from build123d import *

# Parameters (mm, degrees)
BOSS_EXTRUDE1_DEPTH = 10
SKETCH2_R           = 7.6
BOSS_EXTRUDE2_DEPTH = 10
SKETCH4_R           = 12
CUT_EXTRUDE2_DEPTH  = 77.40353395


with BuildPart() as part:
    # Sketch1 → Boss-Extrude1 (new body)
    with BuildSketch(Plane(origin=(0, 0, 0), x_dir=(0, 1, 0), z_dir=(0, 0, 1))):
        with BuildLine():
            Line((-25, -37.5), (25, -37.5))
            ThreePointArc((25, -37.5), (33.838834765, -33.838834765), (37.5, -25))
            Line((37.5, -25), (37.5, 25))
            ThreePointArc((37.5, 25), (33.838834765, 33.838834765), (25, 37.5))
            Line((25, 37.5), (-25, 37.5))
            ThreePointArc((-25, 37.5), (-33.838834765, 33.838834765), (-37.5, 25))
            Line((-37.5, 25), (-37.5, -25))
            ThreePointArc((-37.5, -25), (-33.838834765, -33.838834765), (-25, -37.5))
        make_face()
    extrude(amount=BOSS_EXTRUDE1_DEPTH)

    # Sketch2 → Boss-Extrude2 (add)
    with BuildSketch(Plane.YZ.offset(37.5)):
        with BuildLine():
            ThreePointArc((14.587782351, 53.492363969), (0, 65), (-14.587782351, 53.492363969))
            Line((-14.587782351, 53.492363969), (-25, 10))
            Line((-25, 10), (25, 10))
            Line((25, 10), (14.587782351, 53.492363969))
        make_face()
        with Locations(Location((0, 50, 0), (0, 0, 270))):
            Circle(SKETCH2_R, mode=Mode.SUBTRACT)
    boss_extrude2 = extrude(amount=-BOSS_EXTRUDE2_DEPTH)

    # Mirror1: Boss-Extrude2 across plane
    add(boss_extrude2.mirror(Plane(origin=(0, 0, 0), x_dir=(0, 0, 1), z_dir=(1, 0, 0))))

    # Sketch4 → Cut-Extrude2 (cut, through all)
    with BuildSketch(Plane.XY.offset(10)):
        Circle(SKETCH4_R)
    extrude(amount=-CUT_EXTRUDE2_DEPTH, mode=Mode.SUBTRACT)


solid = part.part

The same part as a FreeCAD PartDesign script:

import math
import FreeCAD as App
import Part
import Sketcher

doc = App.newDocument("Part")
body = doc.addObject("PartDesign::Body", "Body")

# Sketch on XY plane
sketch1 = body.newObject("Sketcher::SketchObject", "Sketch")
sketch1.AttachmentSupport = (doc.getObject("XY_Plane"), [""])
sketch1.MapMode = "FlatFace"
sketch1.addGeometry(Part.LineSegment(App.Vector(38, -25, 0), App.Vector(38, 25, 0)), False)
sketch1.addGeometry(Part.ArcOfCircle(Part.Circle(App.Vector(25, 25, 0), App.Vector(0, 0, 1), 12), math.radians(0), math.radians(90)), False)
sketch1.addGeometry(Part.LineSegment(App.Vector(25, 38, 0), App.Vector(-25, 38, 0)), False)
sketch1.addGeometry(Part.ArcOfCircle(Part.Circle(App.Vector(-25, 25, 0), App.Vector(0, 0, 1), 12), math.radians(90), math.radians(180)), False)
sketch1.addGeometry(Part.LineSegment(App.Vector(-38, 25, 0), App.Vector(-38, -25, 0)), False)
sketch1.addGeometry(Part.ArcOfCircle(Part.Circle(App.Vector(-25, -25, 0), App.Vector(0, 0, 1), 12), math.radians(180), math.radians(270)), False)
sketch1.addGeometry(Part.LineSegment(App.Vector(-25, -38, 0), App.Vector(25, -38, 0)), False)
sketch1.addGeometry(Part.ArcOfCircle(Part.Circle(App.Vector(25, -25, 0), App.Vector(0, 0, 1), 12), math.radians(-90), math.radians(0)), False)
sketch1.addConstraint(Sketcher.Constraint("Tangent", 0, 2, 1, 1))
sketch1.addConstraint(Sketcher.Constraint("Tangent", 1, 2, 2, 1))
sketch1.addConstraint(Sketcher.Constraint("Tangent", 2, 2, 3, 1))
sketch1.addConstraint(Sketcher.Constraint("Tangent", 3, 2, 4, 1))
sketch1.addConstraint(Sketcher.Constraint("Tangent", 4, 2, 5, 1))
sketch1.addConstraint(Sketcher.Constraint("Tangent", 5, 2, 6, 1))
sketch1.addConstraint(Sketcher.Constraint("Tangent", 6, 2, 7, 1))
sketch1.addConstraint(Sketcher.Constraint("Tangent", 7, 2, 0, 1))
sketch1.addConstraint(Sketcher.Constraint("Vertical", 0))
sketch1.addConstraint(Sketcher.Constraint("Horizontal", 2))
sketch1.addConstraint(Sketcher.Constraint("Vertical", 4))
sketch1.addConstraint(Sketcher.Constraint("Horizontal", 6))
sketch1.addConstraint(Sketcher.Constraint("Equal", 1, 3))
sketch1.addConstraint(Sketcher.Constraint("Equal", 3, 5))
sketch1.addConstraint(Sketcher.Constraint("Equal", 5, 7))
sketch1.addConstraint(Sketcher.Constraint("Symmetric", 1, 3, 5, 3, -1, 1))
sketch1.addConstraint(Sketcher.Constraint("Equal", 6, 0))
sketch1.addConstraint(Sketcher.Constraint("Radius", 1, 12.5))
sketch1.addConstraint(Sketcher.Constraint("DistanceX", 2, 2, 2, 1, 50.0))
pad1 = body.newObject("PartDesign::Pad", "Pad")
pad1.Profile = sketch1
pad1.Length = 10

# Sketch on YZ plane
sketch2 = body.newObject("Sketcher::SketchObject", "Sketch001")
sketch2.AttachmentSupport = (doc.getObject("YZ_Plane"), [""])
sketch2.MapMode = "FlatFace"
sketch2.AttachmentOffset = App.Placement(App.Vector(0, 0, 37.5), App.Rotation())
sketch2.addGeometry(Part.ArcOfCircle(Part.Circle(App.Vector(0, 50, 0), App.Vector(0, 0, 1), 15), math.radians(13), math.radians(167)), False)
sketch2.addGeometry(Part.LineSegment(App.Vector(-15, 53, 0), App.Vector(-25, 10, 0)), False)
sketch2.addGeometry(Part.LineSegment(App.Vector(-25, 10, 0), App.Vector(25, 10, 0)), False)
sketch2.addGeometry(Part.LineSegment(App.Vector(25, 10, 0), App.Vector(15, 53, 0)), False)
sketch2.addGeometry(Part.Circle(App.Vector(0, 50, 0), App.Vector(0, 0, 1), 8), False)
sketch2.addConstraint(Sketcher.Constraint("Tangent", 0, 2, 1, 1))
sketch2.addConstraint(Sketcher.Constraint("Coincident", 1, 2, 2, 1))
sketch2.addConstraint(Sketcher.Constraint("Coincident", 2, 2, 3, 1))
sketch2.addConstraint(Sketcher.Constraint("Tangent", 3, 2, 0, 1))
sketch2.addConstraint(Sketcher.Constraint("Horizontal", 2))
sketch2.addConstraint(Sketcher.Constraint("Coincident", 4, 3, 0, 3))
sketch2.addConstraint(Sketcher.Constraint("Symmetric", 0, 2, 3, 2, -2))
sketch2.addConstraint(Sketcher.Constraint("Radius", 0, 15.0))
sketch2.addConstraint(Sketcher.Constraint("Diameter", 4, 15.2))
sketch2.addConstraint(Sketcher.Constraint("DistanceX", 2, 1, 2, 2, 50.0))
sketch2.addConstraint(Sketcher.Constraint("DistanceY", -1, 1, 0, 3, 50.0))
sketch2.addConstraint(Sketcher.Constraint("DistanceY", -1, 1, 1, 2, 10.0))
pad2 = body.newObject("PartDesign::Pad", "Pad001")
pad2.Profile = sketch2
pad2.Length = 10
pad2.Reversed = True
doc.recompute()

mirrored = body.newObject("PartDesign::Mirrored", "Mirrored")
mirrored.Originals = [pad2]
mirrored.MirrorPlane = (doc.getObject("YZ_Plane"), [""])
body.Tip = mirrored

# Sketch on XY plane
sketch3 = body.newObject("Sketcher::SketchObject", "Sketch002")
sketch3.AttachmentSupport = (doc.getObject("XY_Plane"), [""])
sketch3.MapMode = "FlatFace"
sketch3.AttachmentOffset = App.Placement(App.Vector(0, 0, 10), App.Rotation())
sketch3.addGeometry(Part.Circle(App.Vector(0, 0, 0), App.Vector(0, 0, 1), 12), False)
sketch3.addConstraint(Sketcher.Constraint("Coincident", 0, 3, -1, 1))
sketch3.addConstraint(Sketcher.Constraint("Diameter", 0, 24.0))
pocket1 = body.newObject("PartDesign::Pocket", "Pocket")
pocket1.Profile = sketch3
pocket1.Type = "ThroughAll"

doc.recompute()
